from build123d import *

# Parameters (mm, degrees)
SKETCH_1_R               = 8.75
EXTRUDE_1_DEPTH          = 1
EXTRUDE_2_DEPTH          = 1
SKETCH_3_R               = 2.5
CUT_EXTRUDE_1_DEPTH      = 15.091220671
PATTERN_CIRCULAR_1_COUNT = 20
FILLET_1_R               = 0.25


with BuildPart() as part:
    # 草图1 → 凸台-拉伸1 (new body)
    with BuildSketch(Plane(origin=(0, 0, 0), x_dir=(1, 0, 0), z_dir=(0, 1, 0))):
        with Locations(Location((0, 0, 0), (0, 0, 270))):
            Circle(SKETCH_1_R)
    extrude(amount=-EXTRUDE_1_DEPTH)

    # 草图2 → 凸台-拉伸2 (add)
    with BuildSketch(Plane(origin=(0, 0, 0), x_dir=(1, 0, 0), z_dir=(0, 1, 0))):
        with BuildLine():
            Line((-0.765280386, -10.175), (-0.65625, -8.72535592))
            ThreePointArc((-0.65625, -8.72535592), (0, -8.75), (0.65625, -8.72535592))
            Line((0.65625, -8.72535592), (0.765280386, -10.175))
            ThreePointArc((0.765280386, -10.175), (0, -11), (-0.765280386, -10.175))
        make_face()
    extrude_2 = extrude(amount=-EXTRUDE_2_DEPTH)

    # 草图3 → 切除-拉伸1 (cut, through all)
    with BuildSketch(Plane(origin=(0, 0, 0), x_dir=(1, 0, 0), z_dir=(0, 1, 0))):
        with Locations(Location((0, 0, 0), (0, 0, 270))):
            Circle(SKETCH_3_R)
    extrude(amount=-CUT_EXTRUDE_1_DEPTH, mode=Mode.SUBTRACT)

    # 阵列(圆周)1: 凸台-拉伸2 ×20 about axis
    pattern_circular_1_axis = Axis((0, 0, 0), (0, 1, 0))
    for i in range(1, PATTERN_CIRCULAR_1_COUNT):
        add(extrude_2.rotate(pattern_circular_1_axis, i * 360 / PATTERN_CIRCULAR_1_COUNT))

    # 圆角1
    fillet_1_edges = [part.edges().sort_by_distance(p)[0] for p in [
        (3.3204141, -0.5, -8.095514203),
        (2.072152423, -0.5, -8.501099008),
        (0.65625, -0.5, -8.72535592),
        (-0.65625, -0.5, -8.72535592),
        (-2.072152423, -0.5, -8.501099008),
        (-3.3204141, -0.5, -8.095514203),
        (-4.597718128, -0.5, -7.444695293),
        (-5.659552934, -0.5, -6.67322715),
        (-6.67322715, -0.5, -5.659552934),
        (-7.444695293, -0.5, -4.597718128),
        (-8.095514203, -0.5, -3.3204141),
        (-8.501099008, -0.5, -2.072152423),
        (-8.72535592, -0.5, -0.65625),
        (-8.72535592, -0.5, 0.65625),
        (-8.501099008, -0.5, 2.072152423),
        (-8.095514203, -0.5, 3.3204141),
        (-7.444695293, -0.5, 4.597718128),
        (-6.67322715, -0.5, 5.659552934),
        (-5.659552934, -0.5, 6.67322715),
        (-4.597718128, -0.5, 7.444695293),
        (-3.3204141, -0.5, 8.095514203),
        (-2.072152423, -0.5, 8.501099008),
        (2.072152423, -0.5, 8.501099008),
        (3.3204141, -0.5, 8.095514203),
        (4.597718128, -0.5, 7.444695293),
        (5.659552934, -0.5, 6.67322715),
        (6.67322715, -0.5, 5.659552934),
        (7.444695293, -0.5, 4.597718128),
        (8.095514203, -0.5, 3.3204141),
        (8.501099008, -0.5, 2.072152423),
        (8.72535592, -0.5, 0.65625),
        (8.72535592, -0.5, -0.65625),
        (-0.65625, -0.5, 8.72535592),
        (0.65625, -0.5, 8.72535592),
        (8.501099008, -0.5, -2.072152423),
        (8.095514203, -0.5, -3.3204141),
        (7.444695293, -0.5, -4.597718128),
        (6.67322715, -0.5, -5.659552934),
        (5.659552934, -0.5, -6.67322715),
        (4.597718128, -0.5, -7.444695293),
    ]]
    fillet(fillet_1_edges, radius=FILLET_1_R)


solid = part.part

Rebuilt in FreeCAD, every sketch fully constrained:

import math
import FreeCAD as App
import Part
import Sketcher


def edges_at(feature, points):
    """Names of the edges that pass closest to the given points."""
    edges = feature.Shape.Edges
    near = lambda p: min(range(len(edges)), key=lambda i: edges[i].distToShape(Part.Vertex(*p))[0])
    return sorted({f"Edge{near(p) + 1}" for p in points})

doc = App.newDocument("Part")
params = doc.addObject("Spreadsheet::Sheet", "Params")
for row, (alias, value) in enumerate([
    ("sketch1_diameter", "17.5 mm"),
    ("pad1_length", "1 mm"),
    ("sketch2_radius", "8.75 mm"),
    ("pad2_length", "1 mm"),
    ("sketch3_diameter", "5 mm"),
    ("fillet_radius", "0.25 mm"),
], start=1):
    params.set(f"A{row}", alias)
    params.set(f"B{row}", "=" + value)
    params.setAlias(f"B{row}", alias)

body = doc.addObject("PartDesign::Body", "Body")

sketch1 = body.newObject("Sketcher::SketchObject", "Sketch")
sketch1.AttachmentSupport = (doc.getObject("XZ_Plane"), [""])
sketch1.MapMode = "FlatFace"
sketch1.addGeometry(Part.Circle(App.Vector(0, 0, 0), App.Vector(0, 0, 1), 9), False)
sketch1.addConstraint([
    Sketcher.Constraint("Coincident", 0, 3, -1, 1),
    Sketcher.Constraint("Diameter", 0, 17.5),
])
sketch1.setExpression("Constraints[1]", "Params.sketch1_diameter")
pad1 = body.newObject("PartDesign::Pad", "Pad")
pad1.Profile = sketch1
pad1.setExpression("Length", "Params.pad1_length")

sketch2 = body.newObject("Sketcher::SketchObject", "Sketch001")
sketch2.AttachmentSupport = (doc.getObject("XZ_Plane"), [""])
sketch2.MapMode = "FlatFace"
sketch2.addGeometry([
    Part.LineSegment(App.Vector(-0.7, 8.7, 0), App.Vector(-0.8, 10.2, 0)),
    Part.ArcOfCircle(Part.Circle(App.Vector(0, 10.2, 0), App.Vector(0, 0, 1), 0.8), math.radians(-4), math.radians(184)),
    Part.LineSegment(App.Vector(0.8, 10.2, 0), App.Vector(0.7, 8.7, 0)),
    Part.ArcOfCircle(Part.Circle(App.Vector(0, 0, 0), App.Vector(0, 0, 1), 8.7), math.radians(85.7), math.radians(94.3)),
], False)
sketch2.addConstraint([
    Sketcher.Constraint("Tangent", 0, 2, 1, 2),
    Sketcher.Constraint("Tangent", 1, 1, 2, 1),
    Sketcher.Constraint("Coincident", 2, 2, 3, 1),
    Sketcher.Constraint("Coincident", 3, 2, 0, 1),
    Sketcher.Constraint("Coincident", 3, 3, -1, 1),
    Sketcher.Constraint("Symmetric", 0, 2, 1, 1, -2),
    Sketcher.Constraint("Radius", 3, 8.75),
    Sketcher.Constraint("Radius", 1, 0.767442),
    Sketcher.Constraint("DistanceY", -1, 1, 0, 2, 10.175),
    Sketcher.Constraint("DistanceX", 3, 2, 2, 2, 1.3125),
])
sketch2.setExpression("Constraints[6]", "Params.sketch2_radius")
pad2 = body.newObject("PartDesign::Pad", "Pad001")
pad2.Profile = sketch2
pad2.setExpression("Length", "Params.pad2_length")

sketch3 = body.newObject("Sketcher::SketchObject", "Sketch002")
sketch3.AttachmentSupport = (doc.getObject("XZ_Plane"), [""])
sketch3.MapMode = "FlatFace"
sketch3.addGeometry(Part.Circle(App.Vector(0, 0, 0), App.Vector(0, 0, 1), 2.5), False)
sketch3.addConstraint([
    Sketcher.Constraint("Coincident", 0, 3, -1, 1),
    Sketcher.Constraint("Diameter", 0, 5.0),
])
sketch3.setExpression("Constraints[1]", "Params.sketch3_diameter")
pocket1 = body.newObject("PartDesign::Pocket", "Pocket")
pocket1.Profile = sketch3
pocket1.Type = "ThroughAll"
pocket1.Reversed = True
doc.recompute()

polarpattern = body.newObject("PartDesign::PolarPattern", "PolarPattern")
polarpattern.Originals = [pad2]
polarpattern.Axis = (doc.getObject("Y_Axis"), [""])
polarpattern.Angle = 360
polarpattern.Occurrences = 20
body.Tip = polarpattern
doc.recompute()

fillet = body.newObject("PartDesign::Fillet", "Fillet")
fillet.Base = (polarpattern, edges_at(polarpattern, [
    (3.32, -0.5, -8.096),
    (2.072, -0.5, -8.501),
    (0.656, -0.5, -8.725),
    (-0.656, -0.5, -8.725),
    (-2.072, -0.5, -8.501),
    (-3.32, -0.5, -8.096),
    (-4.598, -0.5, -7.445),
    (-5.66, -0.5, -6.673),
    (-6.673, -0.5, -5.66),
    (-7.445, -0.5, -4.598),
    (-8.096, -0.5, -3.32),
    (-8.501, -0.5, -2.072),
    (-8.725, -0.5, -0.656),
    (-8.725, -0.5, 0.656),
    (-8.501, -0.5, 2.072),
    (-8.096, -0.5, 3.32),
    (-7.445, -0.5, 4.598),
    (-6.673, -0.5, 5.66),
    (-5.66, -0.5, 6.673),
    (-4.598, -0.5, 7.445),
    (-3.32, -0.5, 8.096),
    (-2.072, -0.5, 8.501),
    (2.072, -0.5, 8.501),
    (3.32, -0.5, 8.096),
    (4.598, -0.5, 7.445),
    (5.66, -0.5, 6.673),
    (6.673, -0.5, 5.66),
    (7.445, -0.5, 4.598),
    (8.096, -0.5, 3.32),
    (8.501, -0.5, 2.072),
    (8.725, -0.5, 0.656),
    (8.725, -0.5, -0.656),
    (-0.656, -0.5, 8.725),
    (0.656, -0.5, 8.725),
    (8.501, -0.5, -2.072),
    (8.096, -0.5, -3.32),
    (7.445, -0.5, -4.598),
    (6.673, -0.5, -5.66),
    (5.66, -0.5, -6.673),
    (4.598, -0.5, -7.445),
]))
fillet.setExpression("Radius", "Params.fillet_radius")

doc.recompute()
